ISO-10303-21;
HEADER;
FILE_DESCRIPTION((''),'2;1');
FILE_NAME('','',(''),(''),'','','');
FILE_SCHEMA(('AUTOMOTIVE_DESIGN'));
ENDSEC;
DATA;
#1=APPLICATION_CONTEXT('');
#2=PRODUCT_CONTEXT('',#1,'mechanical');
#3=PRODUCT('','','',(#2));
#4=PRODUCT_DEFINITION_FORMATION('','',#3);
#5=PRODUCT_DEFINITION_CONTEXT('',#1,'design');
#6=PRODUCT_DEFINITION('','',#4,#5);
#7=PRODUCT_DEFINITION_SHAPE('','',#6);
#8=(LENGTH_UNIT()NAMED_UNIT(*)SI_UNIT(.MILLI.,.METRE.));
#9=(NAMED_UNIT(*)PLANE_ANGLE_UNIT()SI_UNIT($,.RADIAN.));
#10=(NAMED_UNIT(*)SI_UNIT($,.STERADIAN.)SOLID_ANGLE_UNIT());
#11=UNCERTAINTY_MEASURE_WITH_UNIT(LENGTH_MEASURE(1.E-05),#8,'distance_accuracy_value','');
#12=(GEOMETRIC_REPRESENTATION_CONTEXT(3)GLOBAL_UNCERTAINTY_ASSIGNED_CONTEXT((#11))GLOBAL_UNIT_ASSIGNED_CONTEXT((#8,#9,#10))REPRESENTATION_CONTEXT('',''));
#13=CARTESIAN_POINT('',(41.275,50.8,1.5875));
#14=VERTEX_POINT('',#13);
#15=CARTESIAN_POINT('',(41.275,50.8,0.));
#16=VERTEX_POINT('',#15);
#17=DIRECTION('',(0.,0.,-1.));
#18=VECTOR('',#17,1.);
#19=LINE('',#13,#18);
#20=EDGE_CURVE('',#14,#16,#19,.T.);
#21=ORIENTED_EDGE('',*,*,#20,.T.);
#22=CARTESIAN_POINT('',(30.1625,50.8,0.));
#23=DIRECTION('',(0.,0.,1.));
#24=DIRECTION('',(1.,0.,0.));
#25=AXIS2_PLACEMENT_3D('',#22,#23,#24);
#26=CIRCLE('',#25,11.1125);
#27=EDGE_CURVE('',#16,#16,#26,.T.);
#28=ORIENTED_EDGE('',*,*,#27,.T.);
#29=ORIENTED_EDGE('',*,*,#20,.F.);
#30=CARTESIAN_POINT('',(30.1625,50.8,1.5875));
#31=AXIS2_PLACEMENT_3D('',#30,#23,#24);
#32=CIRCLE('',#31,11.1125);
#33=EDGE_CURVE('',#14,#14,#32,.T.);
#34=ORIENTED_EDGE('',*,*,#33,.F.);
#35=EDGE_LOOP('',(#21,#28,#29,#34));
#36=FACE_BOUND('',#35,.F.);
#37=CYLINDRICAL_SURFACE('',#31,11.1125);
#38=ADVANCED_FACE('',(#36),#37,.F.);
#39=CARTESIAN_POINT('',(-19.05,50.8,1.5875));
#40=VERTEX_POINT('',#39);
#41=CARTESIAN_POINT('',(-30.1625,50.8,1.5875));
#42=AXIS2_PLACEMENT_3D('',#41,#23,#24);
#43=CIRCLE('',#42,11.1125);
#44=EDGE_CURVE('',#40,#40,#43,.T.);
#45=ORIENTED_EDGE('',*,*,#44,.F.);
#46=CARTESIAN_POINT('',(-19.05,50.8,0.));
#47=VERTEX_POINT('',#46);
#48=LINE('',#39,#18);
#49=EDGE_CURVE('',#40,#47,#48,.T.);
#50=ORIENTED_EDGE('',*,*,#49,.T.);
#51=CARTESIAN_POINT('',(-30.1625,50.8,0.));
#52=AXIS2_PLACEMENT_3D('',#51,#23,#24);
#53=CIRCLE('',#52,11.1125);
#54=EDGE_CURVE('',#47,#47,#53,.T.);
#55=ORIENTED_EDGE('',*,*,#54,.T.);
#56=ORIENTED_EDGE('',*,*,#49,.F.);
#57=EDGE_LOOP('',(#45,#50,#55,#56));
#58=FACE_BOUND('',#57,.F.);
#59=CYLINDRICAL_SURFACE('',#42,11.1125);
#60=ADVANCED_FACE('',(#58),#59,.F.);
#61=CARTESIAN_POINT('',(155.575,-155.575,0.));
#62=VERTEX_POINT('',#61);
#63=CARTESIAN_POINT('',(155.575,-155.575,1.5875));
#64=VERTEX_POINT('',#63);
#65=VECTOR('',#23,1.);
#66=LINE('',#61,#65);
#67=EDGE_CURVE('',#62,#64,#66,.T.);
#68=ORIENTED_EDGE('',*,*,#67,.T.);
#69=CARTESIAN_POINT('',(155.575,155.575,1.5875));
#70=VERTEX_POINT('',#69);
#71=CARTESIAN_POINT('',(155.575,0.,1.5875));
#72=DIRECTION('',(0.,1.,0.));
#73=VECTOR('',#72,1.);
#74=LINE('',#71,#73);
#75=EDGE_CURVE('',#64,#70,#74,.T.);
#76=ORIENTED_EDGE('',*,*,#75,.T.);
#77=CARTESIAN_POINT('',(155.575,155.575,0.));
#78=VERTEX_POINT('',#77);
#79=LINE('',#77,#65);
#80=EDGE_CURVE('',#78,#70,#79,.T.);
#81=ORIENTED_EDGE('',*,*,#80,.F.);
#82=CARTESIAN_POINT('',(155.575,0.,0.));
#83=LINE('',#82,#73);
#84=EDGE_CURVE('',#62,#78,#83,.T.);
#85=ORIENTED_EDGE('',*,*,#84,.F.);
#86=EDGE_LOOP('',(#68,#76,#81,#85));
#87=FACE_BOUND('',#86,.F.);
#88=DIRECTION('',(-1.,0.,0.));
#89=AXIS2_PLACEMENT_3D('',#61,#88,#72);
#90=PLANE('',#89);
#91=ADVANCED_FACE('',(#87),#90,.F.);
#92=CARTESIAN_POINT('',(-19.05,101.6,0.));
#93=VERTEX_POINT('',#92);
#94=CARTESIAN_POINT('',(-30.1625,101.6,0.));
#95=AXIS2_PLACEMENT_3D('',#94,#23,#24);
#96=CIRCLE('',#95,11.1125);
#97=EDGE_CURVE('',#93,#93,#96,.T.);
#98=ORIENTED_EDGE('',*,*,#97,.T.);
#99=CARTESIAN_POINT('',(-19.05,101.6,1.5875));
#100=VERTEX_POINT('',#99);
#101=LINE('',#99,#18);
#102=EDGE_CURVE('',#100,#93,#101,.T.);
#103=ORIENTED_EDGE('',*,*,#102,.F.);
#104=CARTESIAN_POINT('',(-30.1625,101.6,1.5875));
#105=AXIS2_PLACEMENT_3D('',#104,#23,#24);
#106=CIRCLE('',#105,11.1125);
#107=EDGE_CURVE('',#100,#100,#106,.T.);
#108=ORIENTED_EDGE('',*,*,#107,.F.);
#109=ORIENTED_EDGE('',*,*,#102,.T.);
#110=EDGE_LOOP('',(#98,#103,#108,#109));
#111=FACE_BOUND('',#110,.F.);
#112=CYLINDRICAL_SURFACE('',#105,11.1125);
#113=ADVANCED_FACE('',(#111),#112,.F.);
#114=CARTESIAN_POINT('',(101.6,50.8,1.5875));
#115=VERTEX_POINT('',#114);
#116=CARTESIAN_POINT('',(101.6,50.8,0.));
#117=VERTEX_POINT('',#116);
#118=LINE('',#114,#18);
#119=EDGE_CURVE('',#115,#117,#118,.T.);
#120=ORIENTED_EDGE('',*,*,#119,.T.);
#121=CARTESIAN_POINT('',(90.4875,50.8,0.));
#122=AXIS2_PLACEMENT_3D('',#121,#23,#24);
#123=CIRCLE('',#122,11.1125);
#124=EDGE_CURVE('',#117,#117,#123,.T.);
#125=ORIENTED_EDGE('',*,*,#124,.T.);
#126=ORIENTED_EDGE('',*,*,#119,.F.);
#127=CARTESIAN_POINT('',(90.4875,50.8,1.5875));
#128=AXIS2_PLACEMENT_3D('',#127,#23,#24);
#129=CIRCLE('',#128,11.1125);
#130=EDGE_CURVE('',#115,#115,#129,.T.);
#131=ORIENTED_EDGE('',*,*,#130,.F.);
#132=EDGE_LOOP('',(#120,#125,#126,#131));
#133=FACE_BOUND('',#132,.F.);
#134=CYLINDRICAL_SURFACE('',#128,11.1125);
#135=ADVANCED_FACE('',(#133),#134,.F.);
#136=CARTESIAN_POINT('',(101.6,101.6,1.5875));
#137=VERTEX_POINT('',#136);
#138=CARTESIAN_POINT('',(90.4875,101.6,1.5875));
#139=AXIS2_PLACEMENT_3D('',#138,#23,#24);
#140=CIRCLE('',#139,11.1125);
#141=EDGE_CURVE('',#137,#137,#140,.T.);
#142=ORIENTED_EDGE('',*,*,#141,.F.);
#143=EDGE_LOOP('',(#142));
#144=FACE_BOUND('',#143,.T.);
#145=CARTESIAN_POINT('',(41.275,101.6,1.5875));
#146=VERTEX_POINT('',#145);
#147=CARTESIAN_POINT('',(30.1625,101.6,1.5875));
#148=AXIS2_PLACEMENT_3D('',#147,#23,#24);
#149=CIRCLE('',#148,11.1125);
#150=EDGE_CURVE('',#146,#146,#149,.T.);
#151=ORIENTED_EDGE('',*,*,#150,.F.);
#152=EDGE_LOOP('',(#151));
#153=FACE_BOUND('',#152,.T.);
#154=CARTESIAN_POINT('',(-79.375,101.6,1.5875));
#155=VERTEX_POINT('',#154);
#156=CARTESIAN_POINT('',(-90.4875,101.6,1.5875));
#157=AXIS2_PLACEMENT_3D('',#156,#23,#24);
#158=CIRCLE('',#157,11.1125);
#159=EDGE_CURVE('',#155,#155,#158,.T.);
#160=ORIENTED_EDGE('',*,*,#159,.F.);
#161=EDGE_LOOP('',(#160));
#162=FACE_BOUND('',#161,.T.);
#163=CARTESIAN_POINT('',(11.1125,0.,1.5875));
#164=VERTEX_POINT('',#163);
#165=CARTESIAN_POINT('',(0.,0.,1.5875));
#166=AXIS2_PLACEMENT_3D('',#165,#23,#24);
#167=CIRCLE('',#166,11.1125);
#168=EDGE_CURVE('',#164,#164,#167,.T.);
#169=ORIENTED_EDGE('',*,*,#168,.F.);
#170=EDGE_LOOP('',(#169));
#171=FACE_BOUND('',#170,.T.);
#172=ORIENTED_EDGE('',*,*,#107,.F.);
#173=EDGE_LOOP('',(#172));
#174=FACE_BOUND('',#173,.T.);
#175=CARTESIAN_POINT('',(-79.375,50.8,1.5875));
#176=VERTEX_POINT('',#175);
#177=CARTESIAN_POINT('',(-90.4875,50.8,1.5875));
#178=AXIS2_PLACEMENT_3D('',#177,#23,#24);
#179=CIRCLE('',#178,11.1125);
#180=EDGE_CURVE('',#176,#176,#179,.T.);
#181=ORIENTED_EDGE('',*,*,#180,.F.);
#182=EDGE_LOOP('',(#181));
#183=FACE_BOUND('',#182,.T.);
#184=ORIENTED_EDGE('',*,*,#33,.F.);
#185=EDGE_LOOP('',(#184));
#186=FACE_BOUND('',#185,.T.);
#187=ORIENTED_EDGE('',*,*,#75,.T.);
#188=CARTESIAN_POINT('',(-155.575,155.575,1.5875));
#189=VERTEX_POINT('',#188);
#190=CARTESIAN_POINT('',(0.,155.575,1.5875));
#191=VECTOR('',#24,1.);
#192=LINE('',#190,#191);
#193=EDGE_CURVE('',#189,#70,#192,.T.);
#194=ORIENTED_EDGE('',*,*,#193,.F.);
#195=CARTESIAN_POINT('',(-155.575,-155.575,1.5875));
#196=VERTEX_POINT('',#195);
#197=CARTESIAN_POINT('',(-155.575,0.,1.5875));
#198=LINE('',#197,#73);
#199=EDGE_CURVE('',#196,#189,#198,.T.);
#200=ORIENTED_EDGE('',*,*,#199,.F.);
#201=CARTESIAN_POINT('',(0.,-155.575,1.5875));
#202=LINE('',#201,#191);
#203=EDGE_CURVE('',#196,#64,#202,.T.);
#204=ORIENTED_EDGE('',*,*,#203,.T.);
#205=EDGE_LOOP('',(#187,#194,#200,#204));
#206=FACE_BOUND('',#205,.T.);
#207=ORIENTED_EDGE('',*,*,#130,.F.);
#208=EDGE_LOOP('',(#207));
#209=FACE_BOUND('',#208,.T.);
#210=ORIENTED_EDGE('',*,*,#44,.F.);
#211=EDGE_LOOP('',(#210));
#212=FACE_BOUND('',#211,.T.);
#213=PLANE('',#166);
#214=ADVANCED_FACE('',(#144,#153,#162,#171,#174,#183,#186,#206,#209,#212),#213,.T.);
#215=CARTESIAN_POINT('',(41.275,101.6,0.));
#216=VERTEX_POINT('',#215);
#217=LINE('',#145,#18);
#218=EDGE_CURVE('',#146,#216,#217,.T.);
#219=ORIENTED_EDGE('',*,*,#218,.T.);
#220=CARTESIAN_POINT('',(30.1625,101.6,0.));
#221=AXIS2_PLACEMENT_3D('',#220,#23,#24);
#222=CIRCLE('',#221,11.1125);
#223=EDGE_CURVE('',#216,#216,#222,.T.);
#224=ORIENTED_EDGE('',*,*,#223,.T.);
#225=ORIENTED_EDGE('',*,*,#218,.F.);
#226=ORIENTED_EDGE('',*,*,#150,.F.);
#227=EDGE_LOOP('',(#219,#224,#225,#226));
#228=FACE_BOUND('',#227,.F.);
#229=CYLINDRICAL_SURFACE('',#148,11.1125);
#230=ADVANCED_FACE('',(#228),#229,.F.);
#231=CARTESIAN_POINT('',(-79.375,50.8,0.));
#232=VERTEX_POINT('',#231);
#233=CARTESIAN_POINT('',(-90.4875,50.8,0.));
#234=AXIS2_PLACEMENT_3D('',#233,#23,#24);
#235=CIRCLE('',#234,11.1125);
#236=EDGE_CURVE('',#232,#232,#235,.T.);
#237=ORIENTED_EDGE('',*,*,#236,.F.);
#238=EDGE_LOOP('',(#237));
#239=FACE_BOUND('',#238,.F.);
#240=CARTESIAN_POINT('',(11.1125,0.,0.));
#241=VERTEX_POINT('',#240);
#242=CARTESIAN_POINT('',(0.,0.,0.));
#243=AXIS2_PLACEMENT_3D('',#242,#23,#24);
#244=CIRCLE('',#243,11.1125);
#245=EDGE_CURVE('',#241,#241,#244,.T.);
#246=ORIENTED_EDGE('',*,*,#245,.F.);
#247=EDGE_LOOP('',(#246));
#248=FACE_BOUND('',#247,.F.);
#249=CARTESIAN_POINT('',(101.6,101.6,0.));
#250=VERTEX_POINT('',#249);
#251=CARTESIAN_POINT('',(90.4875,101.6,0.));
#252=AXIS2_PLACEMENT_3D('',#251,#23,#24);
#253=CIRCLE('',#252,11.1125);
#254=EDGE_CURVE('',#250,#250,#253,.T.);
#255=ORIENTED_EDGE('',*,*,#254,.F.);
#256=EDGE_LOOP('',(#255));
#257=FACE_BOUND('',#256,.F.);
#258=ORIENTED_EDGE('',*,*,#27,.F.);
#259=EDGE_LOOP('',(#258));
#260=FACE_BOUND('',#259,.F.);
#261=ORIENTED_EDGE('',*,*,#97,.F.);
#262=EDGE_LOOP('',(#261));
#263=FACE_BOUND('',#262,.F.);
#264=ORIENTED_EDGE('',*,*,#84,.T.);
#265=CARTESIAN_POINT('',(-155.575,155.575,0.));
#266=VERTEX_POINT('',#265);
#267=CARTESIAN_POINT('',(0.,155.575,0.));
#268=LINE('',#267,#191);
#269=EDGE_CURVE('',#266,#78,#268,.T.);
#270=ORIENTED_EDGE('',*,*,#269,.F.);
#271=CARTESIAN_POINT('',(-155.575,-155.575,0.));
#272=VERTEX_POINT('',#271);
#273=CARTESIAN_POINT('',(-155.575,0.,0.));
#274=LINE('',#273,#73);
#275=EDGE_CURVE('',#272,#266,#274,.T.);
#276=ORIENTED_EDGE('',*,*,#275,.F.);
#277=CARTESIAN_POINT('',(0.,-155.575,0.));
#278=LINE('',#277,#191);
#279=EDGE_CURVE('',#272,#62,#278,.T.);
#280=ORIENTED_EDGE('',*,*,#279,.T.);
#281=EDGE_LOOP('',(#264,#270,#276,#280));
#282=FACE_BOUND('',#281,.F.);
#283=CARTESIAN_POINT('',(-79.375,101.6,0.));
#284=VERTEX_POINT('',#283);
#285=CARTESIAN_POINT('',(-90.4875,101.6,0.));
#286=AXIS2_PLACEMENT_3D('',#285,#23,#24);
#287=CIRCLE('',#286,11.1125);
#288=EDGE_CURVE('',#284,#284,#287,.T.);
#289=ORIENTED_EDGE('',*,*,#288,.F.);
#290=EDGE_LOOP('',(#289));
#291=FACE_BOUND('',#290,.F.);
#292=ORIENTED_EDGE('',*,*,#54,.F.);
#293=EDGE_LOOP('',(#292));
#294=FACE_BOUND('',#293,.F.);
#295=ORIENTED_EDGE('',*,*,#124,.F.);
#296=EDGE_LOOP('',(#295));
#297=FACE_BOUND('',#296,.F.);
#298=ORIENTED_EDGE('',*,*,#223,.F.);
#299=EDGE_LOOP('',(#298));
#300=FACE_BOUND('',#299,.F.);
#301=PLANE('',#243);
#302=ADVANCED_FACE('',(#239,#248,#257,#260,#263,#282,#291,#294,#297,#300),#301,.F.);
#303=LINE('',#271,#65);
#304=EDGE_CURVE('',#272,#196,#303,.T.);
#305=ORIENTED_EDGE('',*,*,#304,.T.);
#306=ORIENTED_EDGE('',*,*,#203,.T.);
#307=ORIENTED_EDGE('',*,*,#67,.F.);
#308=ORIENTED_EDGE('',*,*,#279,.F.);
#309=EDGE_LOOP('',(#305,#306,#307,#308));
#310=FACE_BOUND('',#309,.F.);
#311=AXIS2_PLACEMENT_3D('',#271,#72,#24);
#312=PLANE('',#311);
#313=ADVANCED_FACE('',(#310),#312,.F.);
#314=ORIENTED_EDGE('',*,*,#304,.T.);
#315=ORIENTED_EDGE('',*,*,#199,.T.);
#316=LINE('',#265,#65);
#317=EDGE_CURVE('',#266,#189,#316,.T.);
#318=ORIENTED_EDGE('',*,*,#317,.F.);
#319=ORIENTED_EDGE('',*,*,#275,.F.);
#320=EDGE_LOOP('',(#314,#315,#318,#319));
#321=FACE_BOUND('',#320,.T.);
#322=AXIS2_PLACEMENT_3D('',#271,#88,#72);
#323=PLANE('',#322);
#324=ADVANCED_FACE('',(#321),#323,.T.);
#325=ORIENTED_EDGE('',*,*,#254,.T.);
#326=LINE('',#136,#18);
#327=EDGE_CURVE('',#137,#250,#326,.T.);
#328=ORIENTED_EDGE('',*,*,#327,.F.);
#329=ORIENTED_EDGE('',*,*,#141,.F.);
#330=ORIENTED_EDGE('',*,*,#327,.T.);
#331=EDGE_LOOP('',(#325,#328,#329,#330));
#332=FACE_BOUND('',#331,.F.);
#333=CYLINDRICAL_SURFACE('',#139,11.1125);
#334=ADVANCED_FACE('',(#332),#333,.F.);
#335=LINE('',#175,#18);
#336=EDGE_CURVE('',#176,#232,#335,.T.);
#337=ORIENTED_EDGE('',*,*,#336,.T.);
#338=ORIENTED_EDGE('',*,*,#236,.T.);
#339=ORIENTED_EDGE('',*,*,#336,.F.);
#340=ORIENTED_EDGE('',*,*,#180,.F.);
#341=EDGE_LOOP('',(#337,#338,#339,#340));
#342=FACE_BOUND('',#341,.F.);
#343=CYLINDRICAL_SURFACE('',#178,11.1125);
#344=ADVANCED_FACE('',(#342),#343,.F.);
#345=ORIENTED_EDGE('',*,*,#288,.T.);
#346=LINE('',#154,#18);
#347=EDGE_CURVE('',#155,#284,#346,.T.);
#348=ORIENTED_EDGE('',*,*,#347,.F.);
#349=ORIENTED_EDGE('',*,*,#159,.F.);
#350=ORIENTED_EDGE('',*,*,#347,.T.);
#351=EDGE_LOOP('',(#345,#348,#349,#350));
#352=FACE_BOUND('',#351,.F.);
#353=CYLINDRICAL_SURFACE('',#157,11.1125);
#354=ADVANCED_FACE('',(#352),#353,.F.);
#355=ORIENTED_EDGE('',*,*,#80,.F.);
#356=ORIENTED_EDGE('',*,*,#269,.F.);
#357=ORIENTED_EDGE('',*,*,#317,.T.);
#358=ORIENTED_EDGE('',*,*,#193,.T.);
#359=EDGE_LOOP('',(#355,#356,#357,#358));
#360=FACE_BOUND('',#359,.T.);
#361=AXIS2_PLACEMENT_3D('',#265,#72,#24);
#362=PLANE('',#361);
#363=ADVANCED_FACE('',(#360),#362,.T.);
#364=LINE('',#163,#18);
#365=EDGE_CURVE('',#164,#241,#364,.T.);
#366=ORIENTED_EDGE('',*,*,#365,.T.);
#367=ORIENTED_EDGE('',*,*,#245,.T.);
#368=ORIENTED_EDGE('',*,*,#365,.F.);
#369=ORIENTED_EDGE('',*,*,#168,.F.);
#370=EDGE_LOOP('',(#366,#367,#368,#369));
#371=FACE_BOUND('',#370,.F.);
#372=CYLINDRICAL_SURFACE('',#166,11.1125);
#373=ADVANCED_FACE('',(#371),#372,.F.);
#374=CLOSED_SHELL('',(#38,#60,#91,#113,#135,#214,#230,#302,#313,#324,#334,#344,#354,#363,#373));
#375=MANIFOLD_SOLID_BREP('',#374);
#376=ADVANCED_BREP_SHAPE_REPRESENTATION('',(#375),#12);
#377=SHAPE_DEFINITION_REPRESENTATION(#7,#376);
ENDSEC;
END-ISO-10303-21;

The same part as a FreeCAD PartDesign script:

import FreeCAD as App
import Part
import Sketcher
from FreeCAD import Vector
Q = App.Units.Quantity

doc = App.newDocument("Part")
body = doc.addObject("PartDesign::Body", "Body")

# Sketch on XY plane
sketch1 = doc.addObject("Sketcher::SketchObject", "Sketch")
body.addObject(sketch1)
sketch1.AttachmentSupport = (doc.XY_Plane, [""])
sketch1.MapMode = "FlatFace"
sketch1.addGeometry(Part.LineSegment(Vector(-156, 156, 0), Vector(-156, -156, 0)), False)
sketch1.addGeometry(Part.LineSegment(Vector(-156, -156, 0), Vector(156, -156, 0)), False)
sketch1.addGeometry(Part.LineSegment(Vector(156, -156, 0), Vector(156, 156, 0)), False)
sketch1.addGeometry(Part.LineSegment(Vector(156, 156, 0), Vector(-156, 156, 0)), False)
sketch1.addConstraint(Sketcher.Constraint("Coincident", 0, 2, 1, 1))
sketch1.addConstraint(Sketcher.Constraint("Coincident", 1, 2, 2, 1))
sketch1.addConstraint(Sketcher.Constraint("Coincident", 2, 2, 3, 1))
sketch1.addConstraint(Sketcher.Constraint("Coincident", 3, 2, 0, 1))
sketch1.addConstraint(Sketcher.Constraint("Vertical", 0))
sketch1.addConstraint(Sketcher.Constraint("Horizontal", 1))
sketch1.addConstraint(Sketcher.Constraint("Vertical", 2))
sketch1.addConstraint(Sketcher.Constraint("Horizontal", 3))
sketch1.addConstraint(Sketcher.Constraint("Symmetric", 0, 2, 2, 2, -1, 1))
sketch1.addConstraint(Sketcher.Constraint("Equal", 3, 0))
sketch1.addConstraint(Sketcher.Constraint("DistanceX", 1, 1, 1, 2, Q("12.25 in")))
pad1 = doc.addObject("PartDesign::Pad", "Pad")
body.addObject(pad1)
pad1.Profile = sketch1
pad1.Length = Q("0.0625 in")

# Sketch on XY plane
sketch2 = doc.addObject("Sketcher::SketchObject", "Sketch001")
body.addObject(sketch2)
sketch2.AttachmentSupport = (doc.XY_Plane, [""])
sketch2.MapMode = "FlatFace"
sketch2.AttachmentOffset = App.Placement(Vector(0, 0, 0.0625 * 25.4), App.Rotation())
sketch2.addGeometry(Part.Circle(Vector(-90, 102, 0), Vector(0, 0, 1), 11), False)
sketch2.addGeometry(Part.Circle(Vector(-90, 51, 0), Vector(0, 0, 1), 11), False)
sketch2.addGeometry(Part.Circle(Vector(-30, 51, 0), Vector(0, 0, 1), 11), False)
sketch2.addGeometry(Part.Circle(Vector(-30, 102, 0), Vector(0, 0, 1), 11), False)
sketch2.addGeometry(Part.Circle(Vector(30, 102, 0), Vector(0, 0, 1), 11), False)
sketch2.addGeometry(Part.Circle(Vector(30, 51, 0), Vector(0, 0, 1), 11), False)
sketch2.addGeometry(Part.Circle(Vector(0, 0, 0), Vector(0, 0, 1), 11), False)
sketch2.addGeometry(Part.Circle(Vector(90, 102, 0), Vector(0, 0, 1), 11), False)
sketch2.addGeometry(Part.Circle(Vector(90, 51, 0), Vector(0, 0, 1), 11), False)
sketch2.addConstraint(Sketcher.Constraint("Coincident", 6, 3, -1, 1))
sketch2.addConstraint(Sketcher.Constraint("Equal", 0, 1))
sketch2.addConstraint(Sketcher.Constraint("Equal", 1, 2))
sketch2.addConstraint(Sketcher.Constraint("Equal", 2, 3))
sketch2.addConstraint(Sketcher.Constraint("Equal", 3, 4))
sketch2.addConstraint(Sketcher.Constraint("Equal", 4, 5))
sketch2.addConstraint(Sketcher.Constraint("Equal", 5, 6))
sketch2.addConstraint(Sketcher.Constraint("Equal", 6, 7))
sketch2.addConstraint(Sketcher.Constraint("Equal", 7, 8))
sketch2.addConstraint(Sketcher.Constraint("Symmetric", 3, 3, 4, 3, -2))
sketch2.addConstraint(Sketcher.Constraint("Symmetric", 2, 3, 5, 3, -2))
sketch2.addConstraint(Sketcher.Constraint("Symmetric", 0, 3, 7, 3, -2))
sketch2.addConstraint(Sketcher.Constraint("Symmetric", 1, 3, 8, 3, -2))
sketch2.addConstraint(Sketcher.Constraint("Horizontal", 1, 3, 2, 3))
sketch2.addConstraint(Sketcher.Constraint("Horizontal", 0, 3, 3, 3))
sketch2.addConstraint(Sketcher.Constraint("Vertical", 0, 3, 1, 3))
sketch2.addConstraint(Sketcher.Constraint("Vertical", 2, 3, 3, 3))
sketch2.addConstraint(Sketcher.Constraint("Diameter", 0, Q("0.875 in")))
sketch2.addConstraint(Sketcher.Constraint("DistanceY", -1, 1, 0, 3, Q("4 in")))
sketch2.addConstraint(Sketcher.Constraint("DistanceY", -1, 1, 1, 3, Q("2 in")))
sketch2.addConstraint(Sketcher.Constraint("DistanceX", 0, 3, 4, 3, Q("4.75 in")))
sketch2.addConstraint(Sketcher.Constraint("DistanceX", 0, 3, -1, 1, Q("3.5625 in")))
pocket1 = doc.addObject("PartDesign::Pocket", "Pocket")
body.addObject(pocket1)
pocket1.Profile = sketch2
pocket1.Type = "ThroughAll"

doc.recompute()
